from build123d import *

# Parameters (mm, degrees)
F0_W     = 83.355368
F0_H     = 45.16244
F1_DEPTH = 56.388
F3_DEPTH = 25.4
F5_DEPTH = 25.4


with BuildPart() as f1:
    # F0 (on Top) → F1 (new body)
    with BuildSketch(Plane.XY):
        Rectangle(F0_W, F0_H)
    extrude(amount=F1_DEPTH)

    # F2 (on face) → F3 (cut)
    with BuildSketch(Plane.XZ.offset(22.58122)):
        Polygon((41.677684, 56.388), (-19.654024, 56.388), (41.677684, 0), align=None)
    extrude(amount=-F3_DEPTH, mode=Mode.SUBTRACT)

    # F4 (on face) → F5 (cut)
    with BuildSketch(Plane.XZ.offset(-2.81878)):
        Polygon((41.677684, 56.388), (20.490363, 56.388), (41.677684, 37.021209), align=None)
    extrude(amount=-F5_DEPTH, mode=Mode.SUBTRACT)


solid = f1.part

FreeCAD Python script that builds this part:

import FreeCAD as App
import Part
import Sketcher
Q = App.Units.Quantity

doc = App.newDocument("Part")
body = doc.addObject("PartDesign::Body", "Body")

# Sketch on XY plane
sketch1 = body.newObject("Sketcher::SketchObject", "Sketch")
sketch1.AttachmentSupport = (doc.getObject("XY_Plane"), [""])
sketch1.MapMode = "FlatFace"
sketch1.addGeometry([
    Part.LineSegment(App.Vector(-42, 23, 0), App.Vector(-42, -23, 0)),
    Part.LineSegment(App.Vector(-42, -23, 0), App.Vector(42, -23, 0)),
    Part.LineSegment(App.Vector(42, -23, 0), App.Vector(42, 23, 0)),
    Part.LineSegment(App.Vector(42, 23, 0), App.Vector(-42, 23, 0)),
], False)
sketch1.addConstraint([
    Sketcher.Constraint("Coincident", 0, 2, 1, 1),
    Sketcher.Constraint("Coincident", 1, 2, 2, 1),
    Sketcher.Constraint("Coincident", 2, 2, 3, 1),
    Sketcher.Constraint("Coincident", 3, 2, 0, 1),
    Sketcher.Constraint("Vertical", 0),
    Sketcher.Constraint("Horizontal", 1),
    Sketcher.Constraint("Vertical", 2),
    Sketcher.Constraint("Horizontal", 3),
    Sketcher.Constraint("Symmetric", 0, 2, 2, 2, -1, 1),
    Sketcher.Constraint("DistanceX", 1, 1, 1, 2, 83.355368),
    Sketcher.Constraint("DistanceY", 0, 2, 0, 1, 45.16244),
])
pad1 = body.newObject("PartDesign::Pad", "Pad")
pad1.Profile = sketch1
pad1.Length = Q("2.22 in")

# Sketch on XZ plane
sketch2 = body.newObject("Sketcher::SketchObject", "Sketch001")
sketch2.AttachmentSupport = (doc.getObject("XZ_Plane"), [""])
sketch2.MapMode = "FlatFace"
sketch2.AttachmentOffset = App.Placement(App.Vector(0, 0, 22.58122), App.Rotation())
sketch2.addGeometry([
    Part.LineSegment(App.Vector(42, 56, 0), App.Vector(-20, 56, 0)),
    Part.LineSegment(App.Vector(-20, 56, 0), App.Vector(42, 0, 0)),
    Part.LineSegment(App.Vector(42, 0, 0), App.Vector(42, 56, 0)),
], False)
sketch2.addConstraint([
    Sketcher.Constraint("Coincident", 0, 2, 1, 1),
    Sketcher.Constraint("Coincident", 1, 2, 2, 1),
    Sketcher.Constraint("Coincident", 2, 2, 0, 1),
    Sketcher.Constraint("Horizontal", 0),
    Sketcher.Constraint("Vertical", 2),
    Sketcher.Constraint("PointOnObject", 1, 2, -1),
    Sketcher.Constraint("DistanceY", 2, 1, 2, 2, Q("2.22 in")),
    Sketcher.Constraint("DistanceX", 0, 2, 0, 1, 61.331708),
    Sketcher.Constraint("DistanceX", 0, 2, -1, 1, 19.654024),
])
pocket1 = body.newObject("PartDesign::Pocket", "Pocket")
pocket1.Profile = sketch2
pocket1.Length = Q("1 in")

# Sketch on XZ plane
sketch3 = body.newObject("Sketcher::SketchObject", "Sketch002")
sketch3.AttachmentSupport = (doc.getObject("XZ_Plane"), [""])
sketch3.MapMode = "FlatFace"
sketch3.AttachmentOffset = App.Placement(App.Vector(0, 0, -2.81878), App.Rotation())
sketch3.addGeometry([
    Part.LineSegment(App.Vector(42, 56, 0), App.Vector(20, 56, 0)),
    Part.LineSegment(App.Vector(20, 56, 0), App.Vector(42, 37, 0)),
    Part.LineSegment(App.Vector(42, 37, 0), App.Vector(42, 56, 0)),
], False)
sketch3.addConstraint([
    Sketcher.Constraint("Coincident", 0, 2, 1, 1),
    Sketcher.Constraint("Coincident", 1, 2, 2, 1),
    Sketcher.Constraint("Coincident", 2, 2, 0, 1),
    Sketcher.Constraint("Horizontal", 0),
    Sketcher.Constraint("Vertical", 2),
    Sketcher.Constraint("DistanceY", -1, 1, 0, 2, Q("2.22 in")),
    Sketcher.Constraint("DistanceX", 0, 2, 0, 1, 21.187321),
    Sketcher.Constraint("DistanceY", 2, 1, 2, 2, 19.366791),
    Sketcher.Constraint("DistanceX", -1, 1, 0, 2, 20.490363),
])
pocket2 = body.newObject("PartDesign::Pocket", "Pocket001")
pocket2.Profile = sketch3
pocket2.Length = Q("1 in")

doc.recompute()
